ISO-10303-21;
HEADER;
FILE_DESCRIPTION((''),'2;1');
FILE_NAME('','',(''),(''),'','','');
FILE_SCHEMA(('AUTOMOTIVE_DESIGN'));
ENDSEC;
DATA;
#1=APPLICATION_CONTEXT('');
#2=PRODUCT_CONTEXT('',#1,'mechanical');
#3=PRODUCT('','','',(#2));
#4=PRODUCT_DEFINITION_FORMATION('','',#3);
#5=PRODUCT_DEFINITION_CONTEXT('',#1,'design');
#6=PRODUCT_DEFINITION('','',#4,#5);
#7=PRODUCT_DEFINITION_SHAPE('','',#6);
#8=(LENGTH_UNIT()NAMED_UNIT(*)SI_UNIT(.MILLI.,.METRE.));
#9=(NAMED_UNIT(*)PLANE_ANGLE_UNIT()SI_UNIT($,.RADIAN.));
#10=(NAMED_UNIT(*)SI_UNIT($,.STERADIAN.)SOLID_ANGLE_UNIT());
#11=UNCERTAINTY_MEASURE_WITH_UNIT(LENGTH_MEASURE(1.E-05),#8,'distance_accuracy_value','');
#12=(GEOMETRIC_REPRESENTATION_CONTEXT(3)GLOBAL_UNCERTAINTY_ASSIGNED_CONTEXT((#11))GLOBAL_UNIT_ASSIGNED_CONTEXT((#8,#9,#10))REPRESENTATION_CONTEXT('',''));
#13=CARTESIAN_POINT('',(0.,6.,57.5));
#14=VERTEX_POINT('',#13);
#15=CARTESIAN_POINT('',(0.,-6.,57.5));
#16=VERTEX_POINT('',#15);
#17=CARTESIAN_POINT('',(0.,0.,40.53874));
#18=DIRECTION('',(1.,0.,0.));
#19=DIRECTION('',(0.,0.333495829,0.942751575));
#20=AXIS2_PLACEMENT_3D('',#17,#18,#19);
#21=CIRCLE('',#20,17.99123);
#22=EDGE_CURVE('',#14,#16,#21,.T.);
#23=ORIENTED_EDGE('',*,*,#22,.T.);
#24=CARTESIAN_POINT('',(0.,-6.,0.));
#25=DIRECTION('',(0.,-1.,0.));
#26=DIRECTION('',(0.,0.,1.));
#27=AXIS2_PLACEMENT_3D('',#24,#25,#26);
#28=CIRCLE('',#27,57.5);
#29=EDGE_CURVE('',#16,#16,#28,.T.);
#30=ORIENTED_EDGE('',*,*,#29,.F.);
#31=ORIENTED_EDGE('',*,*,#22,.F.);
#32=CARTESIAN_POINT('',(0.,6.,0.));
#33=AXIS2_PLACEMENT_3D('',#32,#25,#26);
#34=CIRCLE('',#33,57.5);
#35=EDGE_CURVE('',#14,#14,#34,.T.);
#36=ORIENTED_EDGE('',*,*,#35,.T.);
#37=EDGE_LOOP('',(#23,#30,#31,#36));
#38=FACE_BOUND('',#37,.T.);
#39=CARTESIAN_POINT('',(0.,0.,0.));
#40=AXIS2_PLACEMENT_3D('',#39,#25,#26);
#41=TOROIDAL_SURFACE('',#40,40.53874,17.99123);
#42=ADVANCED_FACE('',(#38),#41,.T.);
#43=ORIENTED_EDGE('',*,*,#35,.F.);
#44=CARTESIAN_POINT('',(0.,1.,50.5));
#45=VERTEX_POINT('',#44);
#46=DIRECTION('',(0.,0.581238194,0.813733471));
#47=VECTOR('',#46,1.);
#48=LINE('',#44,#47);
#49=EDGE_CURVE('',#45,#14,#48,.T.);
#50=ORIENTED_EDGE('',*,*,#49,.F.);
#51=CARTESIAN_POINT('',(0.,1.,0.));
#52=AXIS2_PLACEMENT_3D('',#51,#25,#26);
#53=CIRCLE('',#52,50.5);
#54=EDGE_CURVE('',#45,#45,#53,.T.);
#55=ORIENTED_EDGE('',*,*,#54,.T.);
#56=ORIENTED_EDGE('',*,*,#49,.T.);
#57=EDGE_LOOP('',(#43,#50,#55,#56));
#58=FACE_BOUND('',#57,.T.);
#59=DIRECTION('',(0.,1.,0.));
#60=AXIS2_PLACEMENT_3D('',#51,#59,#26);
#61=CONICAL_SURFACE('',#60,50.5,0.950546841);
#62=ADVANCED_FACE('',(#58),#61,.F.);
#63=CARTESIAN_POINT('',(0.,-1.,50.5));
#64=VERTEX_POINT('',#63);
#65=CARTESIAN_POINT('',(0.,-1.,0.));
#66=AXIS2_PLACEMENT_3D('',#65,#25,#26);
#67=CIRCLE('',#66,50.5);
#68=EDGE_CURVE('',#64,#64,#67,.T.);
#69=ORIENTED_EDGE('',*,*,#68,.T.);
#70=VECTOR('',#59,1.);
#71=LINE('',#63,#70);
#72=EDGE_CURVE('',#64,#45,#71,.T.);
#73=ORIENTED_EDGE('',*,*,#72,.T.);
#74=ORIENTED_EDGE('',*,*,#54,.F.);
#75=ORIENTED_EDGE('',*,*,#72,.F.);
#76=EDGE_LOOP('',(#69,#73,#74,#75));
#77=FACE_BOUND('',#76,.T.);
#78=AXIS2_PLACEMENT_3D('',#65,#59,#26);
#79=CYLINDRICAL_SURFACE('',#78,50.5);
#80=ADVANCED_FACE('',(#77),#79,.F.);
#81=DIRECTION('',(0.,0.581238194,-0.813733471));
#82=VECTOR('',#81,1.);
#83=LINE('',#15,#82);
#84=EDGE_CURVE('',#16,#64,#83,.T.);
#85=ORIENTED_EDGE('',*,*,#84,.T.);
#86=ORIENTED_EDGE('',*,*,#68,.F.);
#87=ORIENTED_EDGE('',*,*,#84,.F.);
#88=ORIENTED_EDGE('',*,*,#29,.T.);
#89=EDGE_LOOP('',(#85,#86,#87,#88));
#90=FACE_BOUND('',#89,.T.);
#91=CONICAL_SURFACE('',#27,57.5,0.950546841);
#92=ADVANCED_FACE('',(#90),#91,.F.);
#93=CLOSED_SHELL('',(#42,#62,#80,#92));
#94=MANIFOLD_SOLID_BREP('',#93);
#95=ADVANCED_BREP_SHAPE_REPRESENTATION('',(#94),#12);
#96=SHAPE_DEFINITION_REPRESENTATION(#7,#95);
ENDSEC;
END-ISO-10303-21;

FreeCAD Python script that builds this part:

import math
import FreeCAD as App
import Part
import Sketcher
Q = App.Units.Quantity

doc = App.newDocument("Part")
body = doc.addObject("PartDesign::Body", "Body")

# Sketch on YZ plane
sketch1 = body.newObject("Sketcher::SketchObject", "Sketch")
sketch1.AttachmentSupport = (doc.getObject("YZ_Plane"), [""])
sketch1.MapMode = "FlatFace"
sketch1.addGeometry([
    Part.LineSegment(App.Vector(-1, 50.5, 0), App.Vector(1, 50.5, 0)),
    Part.LineSegment(App.Vector(1, 50.5, 0), App.Vector(6, 57.5, 0)),
    Part.ArcOfCircle(Part.Circle(App.Vector(0, 40.53874, 0), App.Vector(0, 0, 1), 17.99123), math.radians(70.518904), math.radians(109.481096)),
    Part.LineSegment(App.Vector(-6, 57.5, 0), App.Vector(-1, 50.5, 0)),
], False)
sketch1.addConstraint([
    Sketcher.Constraint("Coincident", 0, 2, 1, 1),
    Sketcher.Constraint("Coincident", 1, 2, 2, 1),
    Sketcher.Constraint("Coincident", 2, 2, 3, 1),
    Sketcher.Constraint("Coincident", 3, 2, 0, 1),
    Sketcher.Constraint("Horizontal", 0),
    Sketcher.Constraint("Symmetric", 1, 2, 2, 2, -2),
    Sketcher.Constraint("Equal", 1, 3),
    Sketcher.Constraint("DistanceX", 0, 1, 0, 2, Q("2 mm")),
    Sketcher.Constraint("DistanceX", -1, 1, 1, 2, Q("6 mm")),
    Sketcher.Constraint("DistanceY", 0, 2, 1, 2, Q("7 mm")),
    Sketcher.Constraint("DistanceY", -1, 1, 0, 2, Q("50.5 mm")),
    Sketcher.Constraint("Radius", 2, Q("17.99123 mm")),
])
revolution = body.newObject("PartDesign::Revolution", "Revolution")
revolution.Profile = sketch1
revolution.ReferenceAxis = (sketch1, ["H_Axis"])
revolution.Angle = 360

doc.recompute()
